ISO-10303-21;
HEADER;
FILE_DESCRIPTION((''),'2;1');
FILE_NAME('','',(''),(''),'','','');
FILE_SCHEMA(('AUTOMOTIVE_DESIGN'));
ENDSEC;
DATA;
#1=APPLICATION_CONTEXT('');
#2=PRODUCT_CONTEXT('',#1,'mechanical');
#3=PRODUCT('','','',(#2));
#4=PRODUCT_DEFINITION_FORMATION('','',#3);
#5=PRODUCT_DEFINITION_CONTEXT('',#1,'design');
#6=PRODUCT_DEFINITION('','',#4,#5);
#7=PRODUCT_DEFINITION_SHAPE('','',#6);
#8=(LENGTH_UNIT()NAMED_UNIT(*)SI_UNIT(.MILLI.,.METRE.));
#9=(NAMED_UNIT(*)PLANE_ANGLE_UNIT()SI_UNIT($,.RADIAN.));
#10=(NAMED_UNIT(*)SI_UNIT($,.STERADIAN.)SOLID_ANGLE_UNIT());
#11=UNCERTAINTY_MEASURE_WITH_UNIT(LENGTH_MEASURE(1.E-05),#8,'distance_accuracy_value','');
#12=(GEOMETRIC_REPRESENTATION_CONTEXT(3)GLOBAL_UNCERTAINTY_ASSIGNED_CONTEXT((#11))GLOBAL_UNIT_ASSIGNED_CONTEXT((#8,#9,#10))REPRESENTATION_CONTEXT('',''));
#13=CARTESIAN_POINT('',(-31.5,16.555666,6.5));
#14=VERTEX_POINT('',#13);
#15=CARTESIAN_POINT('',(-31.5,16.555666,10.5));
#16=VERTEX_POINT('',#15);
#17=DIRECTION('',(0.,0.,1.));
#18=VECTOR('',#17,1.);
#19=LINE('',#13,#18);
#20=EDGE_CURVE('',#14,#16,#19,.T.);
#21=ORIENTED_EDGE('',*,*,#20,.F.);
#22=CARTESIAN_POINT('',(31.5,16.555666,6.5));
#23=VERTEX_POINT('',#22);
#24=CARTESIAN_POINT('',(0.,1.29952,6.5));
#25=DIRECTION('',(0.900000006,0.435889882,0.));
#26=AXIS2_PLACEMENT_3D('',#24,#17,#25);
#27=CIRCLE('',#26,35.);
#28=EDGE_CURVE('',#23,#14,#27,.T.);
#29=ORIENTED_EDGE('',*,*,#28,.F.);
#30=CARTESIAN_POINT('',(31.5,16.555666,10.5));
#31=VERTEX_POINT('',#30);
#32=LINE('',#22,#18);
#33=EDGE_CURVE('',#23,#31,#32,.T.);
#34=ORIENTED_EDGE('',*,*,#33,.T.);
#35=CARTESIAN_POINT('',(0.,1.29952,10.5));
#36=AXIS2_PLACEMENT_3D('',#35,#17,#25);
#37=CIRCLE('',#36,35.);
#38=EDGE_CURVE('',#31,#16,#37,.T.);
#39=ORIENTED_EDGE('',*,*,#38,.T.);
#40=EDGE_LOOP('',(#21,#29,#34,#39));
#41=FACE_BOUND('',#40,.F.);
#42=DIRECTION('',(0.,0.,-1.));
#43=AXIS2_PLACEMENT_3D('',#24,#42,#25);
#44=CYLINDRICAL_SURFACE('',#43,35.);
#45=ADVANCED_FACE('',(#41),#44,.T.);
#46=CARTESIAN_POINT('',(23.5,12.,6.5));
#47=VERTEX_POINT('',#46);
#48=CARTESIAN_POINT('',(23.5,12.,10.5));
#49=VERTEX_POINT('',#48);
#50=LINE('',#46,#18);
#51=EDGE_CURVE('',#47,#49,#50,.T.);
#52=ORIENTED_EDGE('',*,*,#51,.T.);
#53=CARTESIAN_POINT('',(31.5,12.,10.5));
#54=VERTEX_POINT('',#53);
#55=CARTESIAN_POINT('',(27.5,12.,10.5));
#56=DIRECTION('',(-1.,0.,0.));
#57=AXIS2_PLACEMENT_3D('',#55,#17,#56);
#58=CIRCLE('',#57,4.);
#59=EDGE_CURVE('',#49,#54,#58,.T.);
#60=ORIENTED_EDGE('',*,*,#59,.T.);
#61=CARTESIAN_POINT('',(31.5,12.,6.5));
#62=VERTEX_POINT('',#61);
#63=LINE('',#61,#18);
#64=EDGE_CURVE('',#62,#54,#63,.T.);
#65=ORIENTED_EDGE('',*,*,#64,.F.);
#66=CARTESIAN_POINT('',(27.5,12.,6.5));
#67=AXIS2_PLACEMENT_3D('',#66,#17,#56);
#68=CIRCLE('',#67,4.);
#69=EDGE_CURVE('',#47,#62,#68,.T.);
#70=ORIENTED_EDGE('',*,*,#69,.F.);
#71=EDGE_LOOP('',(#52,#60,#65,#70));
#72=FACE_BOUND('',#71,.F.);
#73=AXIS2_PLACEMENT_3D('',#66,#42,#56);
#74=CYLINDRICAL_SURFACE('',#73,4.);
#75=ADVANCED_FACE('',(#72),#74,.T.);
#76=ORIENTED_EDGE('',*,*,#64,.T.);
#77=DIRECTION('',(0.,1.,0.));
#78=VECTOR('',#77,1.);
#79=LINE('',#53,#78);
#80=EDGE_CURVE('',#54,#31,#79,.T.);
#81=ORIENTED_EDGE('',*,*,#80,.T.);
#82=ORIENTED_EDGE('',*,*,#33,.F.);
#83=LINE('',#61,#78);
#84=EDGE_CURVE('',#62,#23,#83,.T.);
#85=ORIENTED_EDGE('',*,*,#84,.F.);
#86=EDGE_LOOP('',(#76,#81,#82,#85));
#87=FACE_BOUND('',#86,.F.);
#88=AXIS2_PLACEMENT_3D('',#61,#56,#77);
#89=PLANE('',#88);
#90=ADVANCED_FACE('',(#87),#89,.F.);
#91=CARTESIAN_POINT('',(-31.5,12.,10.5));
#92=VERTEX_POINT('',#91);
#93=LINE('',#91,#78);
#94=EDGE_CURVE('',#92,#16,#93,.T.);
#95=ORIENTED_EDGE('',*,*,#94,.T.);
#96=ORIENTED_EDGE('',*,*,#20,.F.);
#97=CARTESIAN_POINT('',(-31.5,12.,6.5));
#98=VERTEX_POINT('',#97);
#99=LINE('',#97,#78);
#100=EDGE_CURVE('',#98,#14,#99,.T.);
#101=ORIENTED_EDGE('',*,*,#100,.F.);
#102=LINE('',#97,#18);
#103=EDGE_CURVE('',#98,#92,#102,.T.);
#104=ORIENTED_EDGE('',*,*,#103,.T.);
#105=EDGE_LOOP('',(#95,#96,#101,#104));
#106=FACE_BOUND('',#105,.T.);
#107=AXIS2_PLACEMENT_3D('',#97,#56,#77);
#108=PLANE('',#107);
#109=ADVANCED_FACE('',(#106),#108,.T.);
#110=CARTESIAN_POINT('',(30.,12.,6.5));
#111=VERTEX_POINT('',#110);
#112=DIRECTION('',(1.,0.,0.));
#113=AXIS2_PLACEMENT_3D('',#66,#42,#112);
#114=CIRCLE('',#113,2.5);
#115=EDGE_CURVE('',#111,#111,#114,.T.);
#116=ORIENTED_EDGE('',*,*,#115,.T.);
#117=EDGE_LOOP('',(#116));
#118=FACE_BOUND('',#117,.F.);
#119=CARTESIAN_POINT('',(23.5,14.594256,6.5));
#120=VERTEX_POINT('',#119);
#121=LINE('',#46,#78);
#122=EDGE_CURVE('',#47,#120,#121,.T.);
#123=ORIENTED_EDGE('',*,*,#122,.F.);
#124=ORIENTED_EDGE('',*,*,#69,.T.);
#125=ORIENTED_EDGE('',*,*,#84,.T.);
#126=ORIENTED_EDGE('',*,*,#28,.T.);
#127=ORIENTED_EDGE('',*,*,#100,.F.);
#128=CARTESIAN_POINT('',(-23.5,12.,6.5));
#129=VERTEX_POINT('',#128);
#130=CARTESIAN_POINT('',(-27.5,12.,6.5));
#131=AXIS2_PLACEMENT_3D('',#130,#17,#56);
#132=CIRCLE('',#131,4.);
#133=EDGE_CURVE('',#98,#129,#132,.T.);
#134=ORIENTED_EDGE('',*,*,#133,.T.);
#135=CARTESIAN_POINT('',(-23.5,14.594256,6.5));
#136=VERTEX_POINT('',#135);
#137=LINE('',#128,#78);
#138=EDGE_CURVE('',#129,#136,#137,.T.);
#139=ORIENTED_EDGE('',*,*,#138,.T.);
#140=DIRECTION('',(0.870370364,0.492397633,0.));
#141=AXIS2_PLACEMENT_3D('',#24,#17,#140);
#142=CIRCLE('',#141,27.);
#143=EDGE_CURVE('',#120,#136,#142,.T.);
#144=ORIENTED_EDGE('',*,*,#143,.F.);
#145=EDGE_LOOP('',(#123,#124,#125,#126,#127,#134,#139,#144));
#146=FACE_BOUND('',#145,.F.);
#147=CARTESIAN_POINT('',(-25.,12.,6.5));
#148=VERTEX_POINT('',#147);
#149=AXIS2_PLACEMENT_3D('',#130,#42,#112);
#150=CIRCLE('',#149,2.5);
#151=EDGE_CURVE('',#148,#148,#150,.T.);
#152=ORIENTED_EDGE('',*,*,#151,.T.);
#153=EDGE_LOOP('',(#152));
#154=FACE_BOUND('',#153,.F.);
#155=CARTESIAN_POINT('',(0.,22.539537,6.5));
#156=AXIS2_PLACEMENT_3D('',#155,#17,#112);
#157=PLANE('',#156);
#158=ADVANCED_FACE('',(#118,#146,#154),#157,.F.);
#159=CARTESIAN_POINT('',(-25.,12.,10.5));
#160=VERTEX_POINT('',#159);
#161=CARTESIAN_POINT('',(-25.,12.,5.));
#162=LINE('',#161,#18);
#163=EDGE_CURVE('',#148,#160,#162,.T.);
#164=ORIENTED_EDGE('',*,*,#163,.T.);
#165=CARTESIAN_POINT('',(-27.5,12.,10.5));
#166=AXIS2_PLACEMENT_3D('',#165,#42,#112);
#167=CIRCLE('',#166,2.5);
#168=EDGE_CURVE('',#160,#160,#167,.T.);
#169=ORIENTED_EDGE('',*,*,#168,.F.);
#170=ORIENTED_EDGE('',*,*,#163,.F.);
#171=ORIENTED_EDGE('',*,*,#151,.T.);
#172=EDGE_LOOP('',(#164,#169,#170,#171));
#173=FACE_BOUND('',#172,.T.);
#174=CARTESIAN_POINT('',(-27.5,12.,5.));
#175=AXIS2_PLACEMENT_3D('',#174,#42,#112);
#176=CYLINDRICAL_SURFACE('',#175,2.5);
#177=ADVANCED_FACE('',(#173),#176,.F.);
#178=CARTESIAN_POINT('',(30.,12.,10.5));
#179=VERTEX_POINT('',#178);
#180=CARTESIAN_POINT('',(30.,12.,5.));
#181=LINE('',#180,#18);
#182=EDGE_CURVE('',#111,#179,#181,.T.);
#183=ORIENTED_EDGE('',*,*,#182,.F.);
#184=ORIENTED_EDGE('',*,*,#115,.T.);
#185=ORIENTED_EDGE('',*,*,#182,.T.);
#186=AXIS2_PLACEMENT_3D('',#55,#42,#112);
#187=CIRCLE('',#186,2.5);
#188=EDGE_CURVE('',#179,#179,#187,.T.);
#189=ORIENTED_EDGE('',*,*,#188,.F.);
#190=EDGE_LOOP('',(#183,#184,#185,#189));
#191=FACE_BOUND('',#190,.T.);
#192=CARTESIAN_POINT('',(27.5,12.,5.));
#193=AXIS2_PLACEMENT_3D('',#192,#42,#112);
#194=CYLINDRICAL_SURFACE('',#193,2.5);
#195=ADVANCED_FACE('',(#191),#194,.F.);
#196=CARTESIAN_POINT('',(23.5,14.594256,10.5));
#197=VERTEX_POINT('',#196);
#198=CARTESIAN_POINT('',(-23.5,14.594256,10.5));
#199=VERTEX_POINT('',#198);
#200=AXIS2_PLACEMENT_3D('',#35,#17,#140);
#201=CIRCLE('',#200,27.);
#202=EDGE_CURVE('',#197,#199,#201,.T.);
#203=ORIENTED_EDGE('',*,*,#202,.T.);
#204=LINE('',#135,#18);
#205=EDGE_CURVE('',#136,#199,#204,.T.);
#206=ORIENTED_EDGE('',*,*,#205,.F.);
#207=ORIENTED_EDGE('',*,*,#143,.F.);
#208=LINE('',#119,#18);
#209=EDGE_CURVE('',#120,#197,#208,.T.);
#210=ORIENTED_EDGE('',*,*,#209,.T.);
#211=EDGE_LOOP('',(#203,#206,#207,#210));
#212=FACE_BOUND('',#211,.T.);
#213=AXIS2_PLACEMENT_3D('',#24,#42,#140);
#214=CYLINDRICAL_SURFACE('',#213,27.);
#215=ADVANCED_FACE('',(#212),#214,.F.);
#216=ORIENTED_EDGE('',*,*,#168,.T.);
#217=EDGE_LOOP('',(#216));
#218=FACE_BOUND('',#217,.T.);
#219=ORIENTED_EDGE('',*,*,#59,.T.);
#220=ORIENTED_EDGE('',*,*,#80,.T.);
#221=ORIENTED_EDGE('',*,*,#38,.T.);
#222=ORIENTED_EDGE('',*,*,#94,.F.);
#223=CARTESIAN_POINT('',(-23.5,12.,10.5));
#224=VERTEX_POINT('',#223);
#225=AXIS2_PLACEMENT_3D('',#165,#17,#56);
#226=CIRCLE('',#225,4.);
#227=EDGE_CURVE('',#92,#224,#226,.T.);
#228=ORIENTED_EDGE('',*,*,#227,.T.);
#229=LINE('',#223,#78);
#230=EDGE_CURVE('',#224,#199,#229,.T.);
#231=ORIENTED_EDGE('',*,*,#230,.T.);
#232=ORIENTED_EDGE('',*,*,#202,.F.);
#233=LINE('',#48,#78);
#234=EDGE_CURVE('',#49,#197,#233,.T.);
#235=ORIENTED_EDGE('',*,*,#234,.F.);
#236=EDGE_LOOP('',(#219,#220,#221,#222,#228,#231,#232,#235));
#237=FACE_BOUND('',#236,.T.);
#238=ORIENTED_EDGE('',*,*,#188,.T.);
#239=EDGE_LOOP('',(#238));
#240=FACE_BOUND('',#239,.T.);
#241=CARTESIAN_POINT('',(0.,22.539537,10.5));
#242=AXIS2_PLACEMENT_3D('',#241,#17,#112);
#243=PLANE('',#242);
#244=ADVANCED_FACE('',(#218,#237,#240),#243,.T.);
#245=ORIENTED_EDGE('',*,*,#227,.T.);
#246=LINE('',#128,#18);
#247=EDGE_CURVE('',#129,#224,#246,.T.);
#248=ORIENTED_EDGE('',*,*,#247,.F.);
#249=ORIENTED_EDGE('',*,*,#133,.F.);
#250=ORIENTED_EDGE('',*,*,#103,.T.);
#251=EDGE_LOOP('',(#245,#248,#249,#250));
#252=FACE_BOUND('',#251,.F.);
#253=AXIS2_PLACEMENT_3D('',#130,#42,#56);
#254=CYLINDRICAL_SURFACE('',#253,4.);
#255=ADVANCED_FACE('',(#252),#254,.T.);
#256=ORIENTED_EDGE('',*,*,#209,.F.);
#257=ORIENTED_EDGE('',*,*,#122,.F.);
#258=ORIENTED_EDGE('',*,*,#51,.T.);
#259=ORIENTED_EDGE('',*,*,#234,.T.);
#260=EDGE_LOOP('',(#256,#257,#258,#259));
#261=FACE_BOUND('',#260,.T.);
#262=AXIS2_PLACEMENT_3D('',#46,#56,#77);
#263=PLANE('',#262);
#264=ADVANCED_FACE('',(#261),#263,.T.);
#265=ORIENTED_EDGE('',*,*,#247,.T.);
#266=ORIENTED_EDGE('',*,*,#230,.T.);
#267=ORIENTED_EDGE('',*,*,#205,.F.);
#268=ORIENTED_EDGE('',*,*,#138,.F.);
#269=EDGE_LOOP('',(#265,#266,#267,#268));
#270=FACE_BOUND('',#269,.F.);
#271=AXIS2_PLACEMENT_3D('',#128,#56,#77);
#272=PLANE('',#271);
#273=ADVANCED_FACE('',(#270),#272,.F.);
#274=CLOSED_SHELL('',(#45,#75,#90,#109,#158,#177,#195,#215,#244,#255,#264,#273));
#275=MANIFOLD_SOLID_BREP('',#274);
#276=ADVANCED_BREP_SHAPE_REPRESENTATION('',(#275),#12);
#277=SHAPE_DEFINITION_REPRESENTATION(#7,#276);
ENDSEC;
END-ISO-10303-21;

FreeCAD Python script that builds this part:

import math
import FreeCAD as App
import Part
import Sketcher
from FreeCAD import Vector
Q = App.Units.Quantity

doc = App.newDocument("Part")
body = doc.addObject("PartDesign::Body", "Body")

# Sketch on XY plane
sketch1 = body.newObject("Sketcher::SketchObject", "Sketch")
sketch1.AttachmentSupport = (doc.getObject("XY_Plane"), [""])
sketch1.MapMode = "FlatFace"
sketch1.AttachmentOffset = App.Placement(Vector(0, 0, 5), App.Rotation())
sketch1.addGeometry(Part.Circle(Vector(27.5, 12, 0), Vector(0, 0, 1), 2.5), False)
sketch1.addConstraint(Sketcher.Constraint("Diameter", 0, Q("5 mm")))
sketch1.addConstraint(Sketcher.Constraint("DistanceY", -1, 1, 0, 3, Q("12 mm")))
sketch1.addConstraint(Sketcher.Constraint("DistanceX", -1, 1, 0, 3, Q("27.5 mm")))
pad1 = body.newObject("PartDesign::Pad", "Pad")
pad1.Profile = sketch1
pad1.Length = 7.5
body2 = doc.addObject("PartDesign::Body", "Body001")
body2.AllowCompound = True

# Sketch on XY plane
sketch2 = body2.newObject("Sketcher::SketchObject", "Sketch001")
sketch2.AttachmentSupport = (doc.getObject("XY_Plane001"), [""])
sketch2.MapMode = "FlatFace"
sketch2.AttachmentOffset = App.Placement(Vector(0, 0, 5), App.Rotation())
sketch2.addGeometry(Part.Circle(Vector(-27.5, 12, 0), Vector(0, 0, 1), 2.5), False)
sketch2.addConstraint(Sketcher.Constraint("Diameter", 0, Q("5 mm")))
sketch2.addConstraint(Sketcher.Constraint("DistanceY", -1, 1, 0, 3, Q("12 mm")))
sketch2.addConstraint(Sketcher.Constraint("DistanceX", 0, 3, -1, 1, Q("27.5 mm")))
pad2 = body2.newObject("PartDesign::Pad", "Pad001")
pad2.Profile = sketch2
pad2.Length = 7.5
doc.recompute()

boolean = body2.newObject("PartDesign::Boolean", "Boolean")
boolean.Type = "Fuse"
boolean.addObjects([body])
body3 = doc.addObject("PartDesign::Body", "Body002")

# Sketch on XY plane
sketch3 = body3.newObject("Sketcher::SketchObject", "Sketch002")
sketch3.AttachmentSupport = (doc.getObject("XY_Plane002"), [""])
sketch3.MapMode = "FlatFace"
sketch3.AttachmentOffset = App.Placement(Vector(0, 0, 1.5), App.Rotation())
sketch3.addGeometry(Part.ArcOfCircle(Part.Circle(Vector(27.5, 12, 0), Vector(0, 0, 1), 4), math.radians(180), math.radians(360)), False)
sketch3.addGeometry(Part.LineSegment(Vector(31.5, 12, 0), Vector(31.5, 16.6, 0)), False)
sketch3.addGeometry(Part.ArcOfCircle(Part.Circle(Vector(0, 1.3, 0), Vector(0, 0, 1), 35), math.radians(26), math.radians(154)), False)
sketch3.addGeometry(Part.LineSegment(Vector(-31.5, 16.6, 0), Vector(-31.5, 12, 0)), False)
sketch3.addGeometry(Part.ArcOfCircle(Part.Circle(Vector(-27.5, 12, 0), Vector(0, 0, 1), 4), math.radians(180), math.radians(360)), False)
sketch3.addGeometry(Part.LineSegment(Vector(-23.5, 12, 0), Vector(-23.5, 14.6, 0)), False)
sketch3.addGeometry(Part.ArcOfCircle(Part.Circle(Vector(0, 1.3, 0), Vector(0, 0, 1), 27), math.radians(29), math.radians(151)), False)
sketch3.addGeometry(Part.LineSegment(Vector(23.5, 14.6, 0), Vector(23.5, 12, 0)), False)
sketch3.addConstraint(Sketcher.Constraint("Tangent", 0, 2, 1, 1))
sketch3.addConstraint(Sketcher.Constraint("Coincident", 1, 2, 2, 1))
sketch3.addConstraint(Sketcher.Constraint("Coincident", 2, 2, 3, 1))
sketch3.addConstraint(Sketcher.Constraint("Tangent", 3, 2, 4, 1))
sketch3.addConstraint(Sketcher.Constraint("Tangent", 4, 2, 5, 1))
sketch3.addConstraint(Sketcher.Constraint("Coincident", 5, 2, 6, 2))
sketch3.addConstraint(Sketcher.Constraint("Coincident", 6, 1, 7, 1))
sketch3.addConstraint(Sketcher.Constraint("Tangent", 7, 2, 0, 1))
sketch3.addConstraint(Sketcher.Constraint("Vertical", 1))
sketch3.addConstraint(Sketcher.Constraint("Vertical", 3))
sketch3.addConstraint(Sketcher.Constraint("Vertical", 5))
sketch3.addConstraint(Sketcher.Constraint("Vertical", 7))
sketch3.addConstraint(Sketcher.Constraint("Coincident", 6, 3, 2, 3))
sketch3.addConstraint(Sketcher.Constraint("Equal", 0, 4))
sketch3.addConstraint(Sketcher.Constraint("Symmetric", 0, 3, 4, 3, -2))
sketch3.addConstraint(Sketcher.Constraint("PointOnObject", 2, 3, -2))
sketch3.addConstraint(Sketcher.Constraint("Radius", 0, Q("4 mm")))
sketch3.addConstraint(Sketcher.Constraint("Radius", 2, Q("35 mm")))
sketch3.addConstraint(Sketcher.Constraint("Radius", 6, Q("27 mm")))
sketch3.addConstraint(Sketcher.Constraint("DistanceY", -1, 1, 0, 3, Q("12 mm")))
sketch3.addConstraint(Sketcher.Constraint("DistanceX", 4, 3, 0, 3, Q("55 mm")))
sketch3.addConstraint(Sketcher.Constraint("DistanceY", 1, 1, 1, 2, Q("4.555666 mm")))
pad3 = body3.newObject("PartDesign::Pad", "Pad002")
pad3.Profile = sketch3
pad3.Length = 4
body4 = doc.addObject("PartDesign::Body", "Body003")
doc.recompute()

body3.Placement = App.Placement(Vector(0, 0, 5), App.Rotation(Vector(0, 0, 1), 0))
boolean2 = body4.newObject("PartDesign::Boolean", "Boolean001")
boolean2.Type = "Fuse"
boolean2.addObjects([body3])
doc.recompute()

boolean3 = body4.newObject("PartDesign::Boolean", "Boolean002")
boolean3.Type = "Cut"
boolean3.addObjects([body2])

doc.recompute()
